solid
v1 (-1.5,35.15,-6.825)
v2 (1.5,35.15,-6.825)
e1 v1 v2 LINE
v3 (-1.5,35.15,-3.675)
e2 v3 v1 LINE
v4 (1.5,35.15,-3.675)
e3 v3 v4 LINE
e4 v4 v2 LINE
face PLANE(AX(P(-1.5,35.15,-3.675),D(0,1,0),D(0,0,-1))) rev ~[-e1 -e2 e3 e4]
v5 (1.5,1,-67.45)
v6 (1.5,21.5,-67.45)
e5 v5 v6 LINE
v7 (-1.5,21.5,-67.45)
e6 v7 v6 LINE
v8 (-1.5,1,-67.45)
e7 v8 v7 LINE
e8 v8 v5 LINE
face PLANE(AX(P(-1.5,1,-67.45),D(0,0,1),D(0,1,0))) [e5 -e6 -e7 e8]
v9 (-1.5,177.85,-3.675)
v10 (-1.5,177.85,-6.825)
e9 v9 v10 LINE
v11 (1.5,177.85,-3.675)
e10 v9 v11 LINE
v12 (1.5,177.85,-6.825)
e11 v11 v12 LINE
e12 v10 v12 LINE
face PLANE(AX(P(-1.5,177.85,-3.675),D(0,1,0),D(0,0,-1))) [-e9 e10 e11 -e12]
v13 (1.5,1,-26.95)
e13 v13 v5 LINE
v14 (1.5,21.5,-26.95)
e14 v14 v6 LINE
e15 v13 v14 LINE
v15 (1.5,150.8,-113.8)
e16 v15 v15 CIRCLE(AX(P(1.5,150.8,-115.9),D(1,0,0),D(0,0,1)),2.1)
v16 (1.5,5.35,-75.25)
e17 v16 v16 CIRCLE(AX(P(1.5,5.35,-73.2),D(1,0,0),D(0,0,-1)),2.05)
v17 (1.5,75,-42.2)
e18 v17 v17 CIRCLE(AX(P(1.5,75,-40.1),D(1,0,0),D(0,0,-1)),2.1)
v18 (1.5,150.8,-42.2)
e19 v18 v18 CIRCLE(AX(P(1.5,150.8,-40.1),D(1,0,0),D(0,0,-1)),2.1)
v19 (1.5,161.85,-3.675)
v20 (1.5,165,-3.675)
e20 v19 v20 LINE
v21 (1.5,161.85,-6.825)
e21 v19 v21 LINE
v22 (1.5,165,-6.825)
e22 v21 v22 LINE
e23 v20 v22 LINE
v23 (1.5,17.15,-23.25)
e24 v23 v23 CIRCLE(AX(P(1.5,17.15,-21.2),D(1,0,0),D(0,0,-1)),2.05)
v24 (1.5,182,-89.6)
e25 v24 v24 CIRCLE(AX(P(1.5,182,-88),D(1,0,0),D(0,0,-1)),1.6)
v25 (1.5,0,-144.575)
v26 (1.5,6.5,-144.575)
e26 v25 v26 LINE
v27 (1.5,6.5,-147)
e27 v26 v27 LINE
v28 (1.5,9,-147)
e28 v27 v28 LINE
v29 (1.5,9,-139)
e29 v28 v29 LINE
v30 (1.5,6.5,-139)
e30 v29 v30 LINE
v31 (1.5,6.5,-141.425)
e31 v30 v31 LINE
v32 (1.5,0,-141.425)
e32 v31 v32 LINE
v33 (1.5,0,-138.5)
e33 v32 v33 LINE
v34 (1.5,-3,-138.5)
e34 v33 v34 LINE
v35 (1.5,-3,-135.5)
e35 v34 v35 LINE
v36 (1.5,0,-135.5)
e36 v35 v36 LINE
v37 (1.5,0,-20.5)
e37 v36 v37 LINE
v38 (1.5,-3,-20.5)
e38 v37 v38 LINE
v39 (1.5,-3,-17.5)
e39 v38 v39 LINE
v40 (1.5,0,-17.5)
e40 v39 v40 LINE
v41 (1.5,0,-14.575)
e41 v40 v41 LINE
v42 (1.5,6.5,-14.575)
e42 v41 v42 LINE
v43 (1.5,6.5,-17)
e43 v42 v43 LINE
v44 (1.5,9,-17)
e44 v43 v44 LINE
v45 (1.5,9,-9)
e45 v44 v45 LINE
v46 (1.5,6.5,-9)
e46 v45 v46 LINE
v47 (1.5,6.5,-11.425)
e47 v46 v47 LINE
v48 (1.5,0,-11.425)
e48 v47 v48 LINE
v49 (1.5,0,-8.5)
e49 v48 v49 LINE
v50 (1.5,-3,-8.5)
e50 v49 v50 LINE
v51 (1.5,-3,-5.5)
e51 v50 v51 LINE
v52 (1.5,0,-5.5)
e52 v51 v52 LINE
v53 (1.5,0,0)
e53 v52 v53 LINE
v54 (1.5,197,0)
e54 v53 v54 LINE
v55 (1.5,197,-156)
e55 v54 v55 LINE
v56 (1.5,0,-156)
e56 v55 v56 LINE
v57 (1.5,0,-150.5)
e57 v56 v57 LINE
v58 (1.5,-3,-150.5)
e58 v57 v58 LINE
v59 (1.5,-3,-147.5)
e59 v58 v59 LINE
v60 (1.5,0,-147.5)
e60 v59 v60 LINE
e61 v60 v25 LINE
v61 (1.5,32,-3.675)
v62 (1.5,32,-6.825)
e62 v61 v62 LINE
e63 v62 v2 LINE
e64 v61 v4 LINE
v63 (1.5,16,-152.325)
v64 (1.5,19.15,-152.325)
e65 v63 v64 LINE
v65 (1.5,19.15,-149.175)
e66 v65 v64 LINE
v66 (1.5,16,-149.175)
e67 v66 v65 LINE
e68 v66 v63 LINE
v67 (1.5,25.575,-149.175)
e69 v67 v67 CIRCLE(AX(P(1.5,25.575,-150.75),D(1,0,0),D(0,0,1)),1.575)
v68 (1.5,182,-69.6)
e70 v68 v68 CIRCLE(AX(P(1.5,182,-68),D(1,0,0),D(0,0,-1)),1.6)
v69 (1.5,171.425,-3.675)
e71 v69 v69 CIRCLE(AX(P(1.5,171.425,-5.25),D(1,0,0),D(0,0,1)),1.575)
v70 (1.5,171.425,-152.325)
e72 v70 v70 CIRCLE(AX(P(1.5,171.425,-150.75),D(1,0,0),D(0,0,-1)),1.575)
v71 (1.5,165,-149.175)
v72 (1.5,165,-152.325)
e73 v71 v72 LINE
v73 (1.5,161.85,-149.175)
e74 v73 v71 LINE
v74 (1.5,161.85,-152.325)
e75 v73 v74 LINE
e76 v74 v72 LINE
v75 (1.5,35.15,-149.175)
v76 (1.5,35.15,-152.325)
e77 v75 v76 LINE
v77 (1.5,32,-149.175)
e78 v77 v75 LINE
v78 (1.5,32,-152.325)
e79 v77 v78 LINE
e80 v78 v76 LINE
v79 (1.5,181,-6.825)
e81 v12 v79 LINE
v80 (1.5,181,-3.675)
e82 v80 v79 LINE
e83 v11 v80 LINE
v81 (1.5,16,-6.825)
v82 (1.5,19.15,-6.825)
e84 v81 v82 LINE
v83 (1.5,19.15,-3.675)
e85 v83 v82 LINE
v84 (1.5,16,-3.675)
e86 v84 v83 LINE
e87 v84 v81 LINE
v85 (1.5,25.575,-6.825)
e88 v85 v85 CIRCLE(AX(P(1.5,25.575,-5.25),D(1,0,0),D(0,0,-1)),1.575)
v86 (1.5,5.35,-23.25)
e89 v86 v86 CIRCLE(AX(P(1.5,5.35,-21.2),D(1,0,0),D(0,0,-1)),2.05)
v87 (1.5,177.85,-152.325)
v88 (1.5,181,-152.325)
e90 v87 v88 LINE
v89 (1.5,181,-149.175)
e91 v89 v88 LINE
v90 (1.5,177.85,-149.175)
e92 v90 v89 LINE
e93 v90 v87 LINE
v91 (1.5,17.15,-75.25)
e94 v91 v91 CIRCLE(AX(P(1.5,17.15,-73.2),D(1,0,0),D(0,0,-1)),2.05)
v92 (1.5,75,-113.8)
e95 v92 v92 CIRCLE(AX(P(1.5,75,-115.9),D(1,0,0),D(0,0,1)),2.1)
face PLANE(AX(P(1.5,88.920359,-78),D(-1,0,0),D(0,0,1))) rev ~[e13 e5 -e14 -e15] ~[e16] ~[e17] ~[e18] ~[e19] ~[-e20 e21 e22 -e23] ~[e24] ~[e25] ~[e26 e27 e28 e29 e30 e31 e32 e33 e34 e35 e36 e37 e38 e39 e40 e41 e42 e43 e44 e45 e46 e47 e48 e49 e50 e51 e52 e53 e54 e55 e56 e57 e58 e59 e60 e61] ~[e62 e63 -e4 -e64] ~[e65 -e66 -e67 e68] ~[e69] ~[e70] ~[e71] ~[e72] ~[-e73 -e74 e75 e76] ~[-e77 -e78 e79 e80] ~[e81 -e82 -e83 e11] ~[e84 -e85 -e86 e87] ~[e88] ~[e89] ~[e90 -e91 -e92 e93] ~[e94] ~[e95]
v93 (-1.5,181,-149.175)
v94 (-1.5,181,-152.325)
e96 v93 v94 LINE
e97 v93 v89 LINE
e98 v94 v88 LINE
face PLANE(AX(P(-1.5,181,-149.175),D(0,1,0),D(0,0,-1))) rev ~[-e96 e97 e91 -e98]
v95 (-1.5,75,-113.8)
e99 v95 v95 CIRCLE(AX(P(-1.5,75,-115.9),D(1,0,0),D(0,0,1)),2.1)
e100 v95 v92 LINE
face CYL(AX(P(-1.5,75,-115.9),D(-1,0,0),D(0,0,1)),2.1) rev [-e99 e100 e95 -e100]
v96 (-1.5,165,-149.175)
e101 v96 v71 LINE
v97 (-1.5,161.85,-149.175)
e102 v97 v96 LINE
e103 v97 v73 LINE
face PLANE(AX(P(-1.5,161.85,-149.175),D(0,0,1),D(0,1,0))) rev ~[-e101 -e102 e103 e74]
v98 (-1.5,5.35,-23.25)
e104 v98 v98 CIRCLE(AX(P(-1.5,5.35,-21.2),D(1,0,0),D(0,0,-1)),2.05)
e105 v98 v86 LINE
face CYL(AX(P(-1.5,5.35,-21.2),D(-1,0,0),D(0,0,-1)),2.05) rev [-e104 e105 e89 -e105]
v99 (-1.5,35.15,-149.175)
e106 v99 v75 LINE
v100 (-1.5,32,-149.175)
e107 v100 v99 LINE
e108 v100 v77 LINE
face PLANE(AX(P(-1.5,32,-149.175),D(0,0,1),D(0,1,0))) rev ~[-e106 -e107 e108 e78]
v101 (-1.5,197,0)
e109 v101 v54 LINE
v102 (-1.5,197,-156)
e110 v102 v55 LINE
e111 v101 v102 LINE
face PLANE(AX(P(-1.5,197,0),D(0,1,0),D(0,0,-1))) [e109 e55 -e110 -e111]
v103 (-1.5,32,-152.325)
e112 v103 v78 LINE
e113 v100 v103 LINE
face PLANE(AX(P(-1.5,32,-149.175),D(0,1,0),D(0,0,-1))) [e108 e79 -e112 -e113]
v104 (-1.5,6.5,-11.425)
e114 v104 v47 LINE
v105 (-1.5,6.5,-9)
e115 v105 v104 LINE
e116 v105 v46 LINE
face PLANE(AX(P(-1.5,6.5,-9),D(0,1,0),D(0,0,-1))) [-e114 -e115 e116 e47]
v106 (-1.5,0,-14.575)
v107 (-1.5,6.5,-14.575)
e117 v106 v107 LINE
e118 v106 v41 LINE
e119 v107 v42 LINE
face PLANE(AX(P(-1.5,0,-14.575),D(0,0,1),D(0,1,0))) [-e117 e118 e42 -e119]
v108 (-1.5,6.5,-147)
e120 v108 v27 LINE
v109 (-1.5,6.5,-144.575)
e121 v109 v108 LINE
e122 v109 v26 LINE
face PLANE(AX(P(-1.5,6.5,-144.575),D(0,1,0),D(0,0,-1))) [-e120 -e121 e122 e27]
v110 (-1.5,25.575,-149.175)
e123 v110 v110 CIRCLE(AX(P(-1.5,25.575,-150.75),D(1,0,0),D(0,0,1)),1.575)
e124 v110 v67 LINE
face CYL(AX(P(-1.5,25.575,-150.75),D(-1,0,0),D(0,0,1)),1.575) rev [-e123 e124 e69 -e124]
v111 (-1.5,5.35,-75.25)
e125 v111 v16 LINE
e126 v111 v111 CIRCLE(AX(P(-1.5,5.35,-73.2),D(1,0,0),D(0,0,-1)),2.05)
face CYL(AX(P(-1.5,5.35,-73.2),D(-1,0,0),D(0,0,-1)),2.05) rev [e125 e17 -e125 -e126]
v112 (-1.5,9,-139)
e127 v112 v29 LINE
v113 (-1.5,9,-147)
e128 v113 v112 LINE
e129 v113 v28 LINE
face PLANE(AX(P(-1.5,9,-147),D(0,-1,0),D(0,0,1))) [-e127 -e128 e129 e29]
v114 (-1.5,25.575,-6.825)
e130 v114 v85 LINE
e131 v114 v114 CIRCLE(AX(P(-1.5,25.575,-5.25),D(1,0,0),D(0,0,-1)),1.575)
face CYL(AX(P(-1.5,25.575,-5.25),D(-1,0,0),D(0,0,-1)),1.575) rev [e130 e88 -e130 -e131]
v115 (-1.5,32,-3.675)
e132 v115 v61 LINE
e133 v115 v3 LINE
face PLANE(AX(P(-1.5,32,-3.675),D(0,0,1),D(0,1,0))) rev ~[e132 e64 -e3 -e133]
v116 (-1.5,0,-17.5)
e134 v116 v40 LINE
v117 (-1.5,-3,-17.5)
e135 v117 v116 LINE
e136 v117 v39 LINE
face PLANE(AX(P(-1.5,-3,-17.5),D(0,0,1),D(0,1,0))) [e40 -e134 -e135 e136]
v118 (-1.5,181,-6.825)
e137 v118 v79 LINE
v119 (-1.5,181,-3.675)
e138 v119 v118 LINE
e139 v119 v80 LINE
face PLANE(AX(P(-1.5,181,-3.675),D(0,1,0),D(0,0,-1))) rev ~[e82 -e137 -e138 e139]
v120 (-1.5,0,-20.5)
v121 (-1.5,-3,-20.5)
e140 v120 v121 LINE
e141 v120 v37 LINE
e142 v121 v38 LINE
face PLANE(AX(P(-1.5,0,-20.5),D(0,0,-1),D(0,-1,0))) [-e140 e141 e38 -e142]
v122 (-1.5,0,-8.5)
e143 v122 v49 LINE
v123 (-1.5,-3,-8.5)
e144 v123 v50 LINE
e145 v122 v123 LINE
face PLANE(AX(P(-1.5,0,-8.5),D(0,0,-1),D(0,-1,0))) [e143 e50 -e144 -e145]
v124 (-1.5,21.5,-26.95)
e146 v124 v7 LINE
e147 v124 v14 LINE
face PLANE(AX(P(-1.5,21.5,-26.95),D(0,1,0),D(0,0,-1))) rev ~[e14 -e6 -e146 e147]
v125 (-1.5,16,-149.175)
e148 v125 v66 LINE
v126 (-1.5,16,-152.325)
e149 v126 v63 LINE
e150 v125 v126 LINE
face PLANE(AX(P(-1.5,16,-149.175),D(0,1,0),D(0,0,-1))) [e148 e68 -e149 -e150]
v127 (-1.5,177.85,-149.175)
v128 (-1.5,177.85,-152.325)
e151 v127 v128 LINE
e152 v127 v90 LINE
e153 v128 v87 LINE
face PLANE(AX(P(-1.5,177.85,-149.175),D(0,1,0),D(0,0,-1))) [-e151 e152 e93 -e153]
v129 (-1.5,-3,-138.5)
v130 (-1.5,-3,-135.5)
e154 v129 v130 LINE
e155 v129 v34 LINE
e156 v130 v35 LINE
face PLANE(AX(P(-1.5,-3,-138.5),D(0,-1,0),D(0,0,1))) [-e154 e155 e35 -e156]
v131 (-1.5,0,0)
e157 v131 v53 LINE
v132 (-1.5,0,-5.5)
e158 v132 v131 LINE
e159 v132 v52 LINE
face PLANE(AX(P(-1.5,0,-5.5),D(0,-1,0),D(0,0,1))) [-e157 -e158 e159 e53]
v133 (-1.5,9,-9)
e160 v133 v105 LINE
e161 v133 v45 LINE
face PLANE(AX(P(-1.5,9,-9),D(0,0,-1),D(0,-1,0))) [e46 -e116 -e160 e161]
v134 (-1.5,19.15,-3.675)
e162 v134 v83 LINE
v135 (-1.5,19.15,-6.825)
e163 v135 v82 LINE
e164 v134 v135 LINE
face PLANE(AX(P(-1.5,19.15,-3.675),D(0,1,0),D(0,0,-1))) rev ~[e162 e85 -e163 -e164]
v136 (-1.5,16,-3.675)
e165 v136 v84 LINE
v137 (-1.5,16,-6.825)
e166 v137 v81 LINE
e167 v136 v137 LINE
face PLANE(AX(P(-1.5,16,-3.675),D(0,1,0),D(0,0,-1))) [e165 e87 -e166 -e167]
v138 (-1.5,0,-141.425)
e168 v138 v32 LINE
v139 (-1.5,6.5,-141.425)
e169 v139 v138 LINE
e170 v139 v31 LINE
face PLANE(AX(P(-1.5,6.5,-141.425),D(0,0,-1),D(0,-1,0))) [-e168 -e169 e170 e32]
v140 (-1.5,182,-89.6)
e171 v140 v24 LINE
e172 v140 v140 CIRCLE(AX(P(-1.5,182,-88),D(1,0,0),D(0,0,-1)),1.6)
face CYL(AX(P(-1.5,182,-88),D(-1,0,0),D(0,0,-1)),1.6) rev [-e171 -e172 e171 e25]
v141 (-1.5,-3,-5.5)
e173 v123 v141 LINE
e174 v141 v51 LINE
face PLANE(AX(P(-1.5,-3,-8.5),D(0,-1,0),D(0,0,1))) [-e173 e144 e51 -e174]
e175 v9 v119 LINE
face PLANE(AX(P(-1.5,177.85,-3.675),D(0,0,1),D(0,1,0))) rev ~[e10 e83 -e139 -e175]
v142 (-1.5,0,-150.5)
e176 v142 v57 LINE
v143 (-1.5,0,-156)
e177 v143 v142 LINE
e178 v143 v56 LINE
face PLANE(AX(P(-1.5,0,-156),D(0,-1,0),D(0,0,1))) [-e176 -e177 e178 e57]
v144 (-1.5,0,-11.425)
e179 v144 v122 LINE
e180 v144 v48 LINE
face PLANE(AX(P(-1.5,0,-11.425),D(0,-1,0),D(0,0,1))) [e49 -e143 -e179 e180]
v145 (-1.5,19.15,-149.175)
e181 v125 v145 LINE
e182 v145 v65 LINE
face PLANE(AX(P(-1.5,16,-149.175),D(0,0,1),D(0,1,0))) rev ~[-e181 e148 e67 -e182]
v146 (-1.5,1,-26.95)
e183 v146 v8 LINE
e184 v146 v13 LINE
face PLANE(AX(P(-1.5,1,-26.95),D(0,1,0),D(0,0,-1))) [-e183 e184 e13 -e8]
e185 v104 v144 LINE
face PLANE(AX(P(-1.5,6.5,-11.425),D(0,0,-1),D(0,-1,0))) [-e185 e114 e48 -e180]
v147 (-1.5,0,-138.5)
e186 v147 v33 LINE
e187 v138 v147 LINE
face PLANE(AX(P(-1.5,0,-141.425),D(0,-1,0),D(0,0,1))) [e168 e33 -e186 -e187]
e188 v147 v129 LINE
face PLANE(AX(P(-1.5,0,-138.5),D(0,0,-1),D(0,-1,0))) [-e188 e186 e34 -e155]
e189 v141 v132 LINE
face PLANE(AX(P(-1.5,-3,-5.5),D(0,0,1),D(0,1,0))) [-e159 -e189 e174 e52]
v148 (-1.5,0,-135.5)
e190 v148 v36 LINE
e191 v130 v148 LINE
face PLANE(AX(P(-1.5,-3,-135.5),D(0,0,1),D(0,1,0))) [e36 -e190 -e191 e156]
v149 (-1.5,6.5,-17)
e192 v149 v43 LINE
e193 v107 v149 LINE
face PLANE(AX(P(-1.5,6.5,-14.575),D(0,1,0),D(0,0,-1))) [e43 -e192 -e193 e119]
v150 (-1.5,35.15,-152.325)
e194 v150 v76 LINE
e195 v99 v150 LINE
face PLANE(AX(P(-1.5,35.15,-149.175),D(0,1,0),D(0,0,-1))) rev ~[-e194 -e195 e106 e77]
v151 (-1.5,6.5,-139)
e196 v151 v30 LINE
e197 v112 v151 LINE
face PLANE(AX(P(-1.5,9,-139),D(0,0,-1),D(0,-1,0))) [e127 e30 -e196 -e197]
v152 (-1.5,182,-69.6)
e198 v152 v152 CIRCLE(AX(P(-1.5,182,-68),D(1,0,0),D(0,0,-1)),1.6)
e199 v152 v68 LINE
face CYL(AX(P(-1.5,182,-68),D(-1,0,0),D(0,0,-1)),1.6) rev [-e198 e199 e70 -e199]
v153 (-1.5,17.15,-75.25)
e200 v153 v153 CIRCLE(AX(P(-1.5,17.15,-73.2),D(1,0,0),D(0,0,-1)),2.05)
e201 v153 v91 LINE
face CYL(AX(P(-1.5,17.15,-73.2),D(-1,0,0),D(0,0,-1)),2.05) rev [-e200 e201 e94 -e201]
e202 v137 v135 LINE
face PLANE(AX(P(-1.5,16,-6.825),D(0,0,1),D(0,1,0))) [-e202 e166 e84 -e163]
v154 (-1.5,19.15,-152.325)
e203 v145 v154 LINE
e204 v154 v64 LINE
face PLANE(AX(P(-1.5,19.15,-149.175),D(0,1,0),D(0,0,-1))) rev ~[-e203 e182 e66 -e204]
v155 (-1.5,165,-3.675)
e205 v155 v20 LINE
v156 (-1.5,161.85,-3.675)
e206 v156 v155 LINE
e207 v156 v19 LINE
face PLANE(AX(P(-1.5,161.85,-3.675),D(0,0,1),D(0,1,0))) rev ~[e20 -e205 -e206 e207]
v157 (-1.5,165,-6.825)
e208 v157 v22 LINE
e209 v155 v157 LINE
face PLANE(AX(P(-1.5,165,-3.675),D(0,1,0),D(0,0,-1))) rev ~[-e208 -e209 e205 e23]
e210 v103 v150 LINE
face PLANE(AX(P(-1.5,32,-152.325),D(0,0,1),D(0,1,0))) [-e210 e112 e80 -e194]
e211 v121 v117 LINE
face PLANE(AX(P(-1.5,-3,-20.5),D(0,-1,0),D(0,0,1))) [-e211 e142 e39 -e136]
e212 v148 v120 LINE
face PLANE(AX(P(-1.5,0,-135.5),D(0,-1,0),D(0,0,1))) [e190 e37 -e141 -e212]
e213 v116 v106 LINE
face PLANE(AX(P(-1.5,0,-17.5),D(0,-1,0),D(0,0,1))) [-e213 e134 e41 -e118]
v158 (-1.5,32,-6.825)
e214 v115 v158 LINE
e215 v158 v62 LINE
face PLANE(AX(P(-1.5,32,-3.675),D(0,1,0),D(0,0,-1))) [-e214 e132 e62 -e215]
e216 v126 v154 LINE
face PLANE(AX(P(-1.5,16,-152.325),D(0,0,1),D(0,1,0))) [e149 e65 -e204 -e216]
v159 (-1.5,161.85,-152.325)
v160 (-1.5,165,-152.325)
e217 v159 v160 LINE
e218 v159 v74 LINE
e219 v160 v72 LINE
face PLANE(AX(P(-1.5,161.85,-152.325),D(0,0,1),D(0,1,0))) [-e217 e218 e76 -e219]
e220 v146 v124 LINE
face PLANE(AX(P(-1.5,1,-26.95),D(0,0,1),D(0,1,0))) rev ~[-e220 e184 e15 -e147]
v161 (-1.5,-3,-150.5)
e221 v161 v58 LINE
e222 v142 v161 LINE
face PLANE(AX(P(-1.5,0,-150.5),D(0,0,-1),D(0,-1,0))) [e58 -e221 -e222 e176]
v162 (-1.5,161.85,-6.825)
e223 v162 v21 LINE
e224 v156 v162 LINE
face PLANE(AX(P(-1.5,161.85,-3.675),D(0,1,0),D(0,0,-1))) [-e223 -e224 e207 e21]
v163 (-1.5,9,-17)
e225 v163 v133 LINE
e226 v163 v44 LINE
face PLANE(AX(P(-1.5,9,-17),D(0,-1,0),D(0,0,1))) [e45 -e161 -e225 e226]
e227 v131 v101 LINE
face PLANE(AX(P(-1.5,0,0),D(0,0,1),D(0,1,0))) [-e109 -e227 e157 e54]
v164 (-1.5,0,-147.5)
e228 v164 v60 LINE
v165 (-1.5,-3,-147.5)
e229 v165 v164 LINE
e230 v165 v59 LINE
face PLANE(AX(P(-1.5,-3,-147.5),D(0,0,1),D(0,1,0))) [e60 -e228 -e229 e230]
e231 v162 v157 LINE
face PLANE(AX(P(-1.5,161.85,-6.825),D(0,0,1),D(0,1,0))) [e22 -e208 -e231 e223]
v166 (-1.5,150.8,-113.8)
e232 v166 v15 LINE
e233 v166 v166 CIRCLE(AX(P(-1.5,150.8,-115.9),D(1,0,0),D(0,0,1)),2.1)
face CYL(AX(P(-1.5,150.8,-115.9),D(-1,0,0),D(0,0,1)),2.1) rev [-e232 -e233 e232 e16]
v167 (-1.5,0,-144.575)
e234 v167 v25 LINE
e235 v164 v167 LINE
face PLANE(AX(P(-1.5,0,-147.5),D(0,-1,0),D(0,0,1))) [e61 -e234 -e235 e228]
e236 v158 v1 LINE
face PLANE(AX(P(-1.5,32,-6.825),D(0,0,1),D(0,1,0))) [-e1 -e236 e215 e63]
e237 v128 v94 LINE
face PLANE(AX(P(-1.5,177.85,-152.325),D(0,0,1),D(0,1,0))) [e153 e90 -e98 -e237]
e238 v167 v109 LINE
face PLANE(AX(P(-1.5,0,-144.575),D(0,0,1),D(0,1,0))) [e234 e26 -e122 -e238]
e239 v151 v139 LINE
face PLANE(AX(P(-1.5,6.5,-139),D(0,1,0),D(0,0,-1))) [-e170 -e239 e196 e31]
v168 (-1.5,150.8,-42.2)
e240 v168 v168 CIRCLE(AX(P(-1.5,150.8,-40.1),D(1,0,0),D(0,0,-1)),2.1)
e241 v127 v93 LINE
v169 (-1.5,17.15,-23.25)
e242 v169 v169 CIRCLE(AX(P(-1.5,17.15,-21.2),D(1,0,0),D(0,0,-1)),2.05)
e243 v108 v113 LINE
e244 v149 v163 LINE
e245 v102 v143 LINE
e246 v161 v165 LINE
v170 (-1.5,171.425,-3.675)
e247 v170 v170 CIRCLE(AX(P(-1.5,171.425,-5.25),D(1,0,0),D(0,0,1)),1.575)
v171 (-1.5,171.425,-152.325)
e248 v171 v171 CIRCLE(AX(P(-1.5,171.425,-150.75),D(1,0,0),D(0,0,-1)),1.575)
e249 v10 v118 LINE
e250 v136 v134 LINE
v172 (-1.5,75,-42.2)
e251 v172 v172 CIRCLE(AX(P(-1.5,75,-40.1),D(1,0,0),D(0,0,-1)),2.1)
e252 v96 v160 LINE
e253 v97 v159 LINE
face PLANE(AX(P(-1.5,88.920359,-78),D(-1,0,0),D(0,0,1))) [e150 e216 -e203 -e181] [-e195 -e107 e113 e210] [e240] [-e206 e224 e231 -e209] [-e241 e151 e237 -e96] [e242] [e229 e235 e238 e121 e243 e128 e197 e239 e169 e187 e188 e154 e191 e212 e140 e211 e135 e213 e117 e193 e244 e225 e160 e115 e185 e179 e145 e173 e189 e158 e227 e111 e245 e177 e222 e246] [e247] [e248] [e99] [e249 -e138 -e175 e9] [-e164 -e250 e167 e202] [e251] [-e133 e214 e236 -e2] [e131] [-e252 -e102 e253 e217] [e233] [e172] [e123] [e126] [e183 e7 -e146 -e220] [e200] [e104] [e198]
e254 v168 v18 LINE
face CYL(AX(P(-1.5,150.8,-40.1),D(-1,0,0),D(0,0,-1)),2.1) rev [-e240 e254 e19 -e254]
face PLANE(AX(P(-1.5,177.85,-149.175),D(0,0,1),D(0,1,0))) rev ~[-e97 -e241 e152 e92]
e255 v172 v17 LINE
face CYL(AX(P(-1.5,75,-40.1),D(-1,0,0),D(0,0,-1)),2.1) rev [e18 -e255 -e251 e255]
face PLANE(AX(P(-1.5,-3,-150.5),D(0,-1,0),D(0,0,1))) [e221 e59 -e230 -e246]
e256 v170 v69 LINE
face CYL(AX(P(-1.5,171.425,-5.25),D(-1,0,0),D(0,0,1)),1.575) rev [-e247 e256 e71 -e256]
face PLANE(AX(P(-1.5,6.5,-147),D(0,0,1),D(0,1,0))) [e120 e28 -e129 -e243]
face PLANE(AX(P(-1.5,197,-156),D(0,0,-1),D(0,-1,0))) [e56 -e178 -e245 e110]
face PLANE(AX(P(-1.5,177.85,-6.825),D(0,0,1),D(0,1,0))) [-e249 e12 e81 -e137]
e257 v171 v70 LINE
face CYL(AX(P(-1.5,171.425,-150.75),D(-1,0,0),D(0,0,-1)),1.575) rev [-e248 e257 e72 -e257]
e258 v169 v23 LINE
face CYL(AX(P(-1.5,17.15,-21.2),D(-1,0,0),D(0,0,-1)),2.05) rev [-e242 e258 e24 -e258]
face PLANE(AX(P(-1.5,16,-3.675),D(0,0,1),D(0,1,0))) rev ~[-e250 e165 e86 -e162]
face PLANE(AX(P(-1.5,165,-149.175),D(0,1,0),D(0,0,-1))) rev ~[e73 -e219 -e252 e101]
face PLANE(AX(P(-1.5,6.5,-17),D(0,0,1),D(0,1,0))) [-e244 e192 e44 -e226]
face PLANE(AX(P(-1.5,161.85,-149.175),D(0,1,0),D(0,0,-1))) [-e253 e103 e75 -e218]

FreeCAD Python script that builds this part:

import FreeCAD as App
import Part
import Sketcher
from FreeCAD import Vector

doc = App.newDocument("Part")
body = doc.addObject("PartDesign::Body", "Body")

sketch1 = body.newObject("Sketcher::SketchObject", "Sketch")
sketch1.AttachmentSupport = (doc.getObject("YZ_Plane"), [""])
sketch1.MapMode = "FlatFace"
sketch1.addGeometry(Part.LineSegment(Vector(0, -8.5, 0), Vector(0, -11.4, 0)), False)
sketch1.addGeometry(Part.LineSegment(Vector(0, -11.4, 0), Vector(6.5, -11.4, 0)), False)
sketch1.addGeometry(Part.LineSegment(Vector(6.5, -11.4, 0), Vector(6.5, -9, 0)), False)
sketch1.addGeometry(Part.LineSegment(Vector(6.5, -9, 0), Vector(9, -9, 0)), False)
sketch1.addGeometry(Part.LineSegment(Vector(9, -9, 0), Vector(9, -17, 0)), False)
sketch1.addGeometry(Part.LineSegment(Vector(9, -17, 0), Vector(6.5, -17, 0)), False)
sketch1.addGeometry(Part.LineSegment(Vector(6.5, -17, 0), Vector(6.5, -14.6, 0)), False)
sketch1.addGeometry(Part.LineSegment(Vector(6.5, -14.6, 0), Vector(0, -14.6, 0)), False)
sketch1.addGeometry(Part.LineSegment(Vector(0, -14.6, 0), Vector(0, -17.5, 0)), False)
sketch1.addGeometry(Part.LineSegment(Vector(0, -17.5, 0), Vector(-3, -17.5, 0)), False)
sketch1.addGeometry(Part.LineSegment(Vector(-3, -17.5, 0), Vector(-3, -20.5, 0)), False)
sketch1.addGeometry(Part.LineSegment(Vector(-3, -20.5, 0), Vector(0, -20.5, 0)), False)
sketch1.addGeometry(Part.LineSegment(Vector(0, -20.5, 0), Vector(0, -135.5, 0)), False)
sketch1.addGeometry(Part.LineSegment(Vector(0, -135.5, 0), Vector(-3, -135.5, 0)), False)
sketch1.addGeometry(Part.LineSegment(Vector(-3, -135.5, 0), Vector(-3, -138.5, 0)), False)
sketch1.addGeometry(Part.LineSegment(Vector(-3, -138.5, 0), Vector(0, -138.5, 0)), False)
sketch1.addGeometry(Part.LineSegment(Vector(0, -138.5, 0), Vector(0, -141.4, 0)), False)
sketch1.addGeometry(Part.LineSegment(Vector(0, -141.4, 0), Vector(6.5, -141.4, 0)), False)
sketch1.addGeometry(Part.LineSegment(Vector(6.5, -141.4, 0), Vector(6.5, -139, 0)), False)
sketch1.addGeometry(Part.LineSegment(Vector(6.5, -139, 0), Vector(9, -139, 0)), False)
sketch1.addGeometry(Part.LineSegment(Vector(9, -139, 0), Vector(9, -147, 0)), False)
sketch1.addGeometry(Part.LineSegment(Vector(9, -147, 0), Vector(6.5, -147, 0)), False)
sketch1.addGeometry(Part.LineSegment(Vector(6.5, -147, 0), Vector(6.5, -144.6, 0)), False)
sketch1.addGeometry(Part.LineSegment(Vector(6.5, -144.6, 0), Vector(0, -144.6, 0)), False)
sketch1.addGeometry(Part.LineSegment(Vector(0, -144.6, 0), Vector(0, -147.5, 0)), False)
sketch1.addGeometry(Part.LineSegment(Vector(0, -147.5, 0), Vector(-3, -147.5, 0)), False)
sketch1.addGeometry(Part.LineSegment(Vector(-3, -147.5, 0), Vector(-3, -150.5, 0)), False)
sketch1.addGeometry(Part.LineSegment(Vector(-3, -150.5, 0), Vector(0, -150.5, 0)), False)
sketch1.addGeometry(Part.LineSegment(Vector(0, -150.5, 0), Vector(0, -156, 0)), False)
sketch1.addGeometry(Part.LineSegment(Vector(0, -156, 0), Vector(197, -156, 0)), False)
sketch1.addGeometry(Part.LineSegment(Vector(197, -156, 0), Vector(197, 0, 0)), False)
sketch1.addGeometry(Part.LineSegment(Vector(197, 0, 0), Vector(0, 0, 0)), False)
sketch1.addGeometry(Part.LineSegment(Vector(0, 0, 0), Vector(0, -5.5, 0)), False)
sketch1.addGeometry(Part.LineSegment(Vector(0, -5.5, 0), Vector(-3, -5.5, 0)), False)
sketch1.addGeometry(Part.LineSegment(Vector(-3, -5.5, 0), Vector(-3, -8.5, 0)), False)
sketch1.addGeometry(Part.LineSegment(Vector(-3, -8.5, 0), Vector(0, -8.5, 0)), False)
sketch1.addGeometry(Part.LineSegment(Vector(16, -149.2, 0), Vector(19.1, -149.2, 0)), False)
sketch1.addGeometry(Part.LineSegment(Vector(19.1, -149.2, 0), Vector(19.1, -152.3, 0)), False)
sketch1.addGeometry(Part.LineSegment(Vector(19.1, -152.3, 0), Vector(16, -152.3, 0)), False)
sketch1.addGeometry(Part.LineSegment(Vector(16, -152.3, 0), Vector(16, -149.2, 0)), False)
sketch1.addGeometry(Part.Circle(Vector(25.6, -150.8, 0), Vector(0, 0, 1), 1.6), False)
sketch1.addGeometry(Part.LineSegment(Vector(32, -149.2, 0), Vector(35.1, -149.2, 0)), False)
sketch1.addGeometry(Part.LineSegment(Vector(35.1, -149.2, 0), Vector(35.1, -152.3, 0)), False)
sketch1.addGeometry(Part.LineSegment(Vector(35.1, -152.3, 0), Vector(32, -152.3, 0)), False)
sketch1.addGeometry(Part.LineSegment(Vector(32, -152.3, 0), Vector(32, -149.2, 0)), False)
sketch1.addGeometry(Part.Circle(Vector(75, -115.9, 0), Vector(0, 0, 1), 2.1), False)
sketch1.addGeometry(Part.Circle(Vector(5.3, -73.2, 0), Vector(0, 0, 1), 2), False)
sketch1.addGeometry(Part.Circle(Vector(17.1, -73.2, 0), Vector(0, 0, 1), 2), False)
sketch1.addGeometry(Part.LineSegment(Vector(1, -26.9, 0), Vector(21.5, -26.9, 0)), False)
sketch1.addGeometry(Part.LineSegment(Vector(21.5, -26.9, 0), Vector(21.5, -67.5, 0)), False)
sketch1.addGeometry(Part.LineSegment(Vector(21.5, -67.5, 0), Vector(1, -67.5, 0)), False)
sketch1.addGeometry(Part.LineSegment(Vector(1, -67.5, 0), Vector(1, -26.9, 0)), False)
sketch1.addGeometry(Part.Circle(Vector(5.3, -21.2, 0), Vector(0, 0, 1), 2), False)
sketch1.addGeometry(Part.Circle(Vector(17.1, -21.2, 0), Vector(0, 0, 1), 2), False)
sketch1.addGeometry(Part.LineSegment(Vector(16, -3.7, 0), Vector(19.1, -3.7, 0)), False)
sketch1.addGeometry(Part.LineSegment(Vector(19.1, -3.7, 0), Vector(19.1, -6.8, 0)), False)
sketch1.addGeometry(Part.LineSegment(Vector(19.1, -6.8, 0), Vector(16, -6.8, 0)), False)
sketch1.addGeometry(Part.LineSegment(Vector(16, -6.8, 0), Vector(16, -3.7, 0)), False)
sketch1.addGeometry(Part.Circle(Vector(25.6, -5.2, 0), Vector(0, 0, 1), 1.6), False)
sketch1.addGeometry(Part.LineSegment(Vector(32, -3.7, 0), Vector(35.1, -3.7, 0)), False)
sketch1.addGeometry(Part.LineSegment(Vector(35.1, -3.7, 0), Vector(35.1, -6.8, 0)), False)
sketch1.addGeometry(Part.LineSegment(Vector(35.1, -6.8, 0), Vector(32, -6.8, 0)), False)
sketch1.addGeometry(Part.LineSegment(Vector(32, -6.8, 0), Vector(32, -3.7, 0)), False)
sketch1.addGeometry(Part.Circle(Vector(75, -40.1, 0), Vector(0, 0, 1), 2.1), False)
sketch1.addGeometry(Part.Circle(Vector(150.8, -115.9, 0), Vector(0, 0, 1), 2.1), False)
sketch1.addGeometry(Part.LineSegment(Vector(161.8, -149.2, 0), Vector(165, -149.2, 0)), False)
sketch1.addGeometry(Part.LineSegment(Vector(165, -149.2, 0), Vector(165, -152.3, 0)), False)
sketch1.addGeometry(Part.LineSegment(Vector(165, -152.3, 0), Vector(161.8, -152.3, 0)), False)
sketch1.addGeometry(Part.LineSegment(Vector(161.8, -152.3, 0), Vector(161.8, -149.2, 0)), False)
sketch1.addGeometry(Part.Circle(Vector(171.4, -150.8, 0), Vector(0, 0, 1), 1.6), False)
sketch1.addGeometry(Part.LineSegment(Vector(177.8, -149.2, 0), Vector(181, -149.2, 0)), False)
sketch1.addGeometry(Part.LineSegment(Vector(181, -149.2, 0), Vector(181, -152.3, 0)), False)
sketch1.addGeometry(Part.LineSegment(Vector(181, -152.3, 0), Vector(177.8, -152.3, 0)), False)
sketch1.addGeometry(Part.LineSegment(Vector(177.8, -152.3, 0), Vector(177.8, -149.2, 0)), False)
sketch1.addGeometry(Part.Circle(Vector(182, -88, 0), Vector(0, 0, 1), 1.6), False)
sketch1.addGeometry(Part.Circle(Vector(182, -68, 0), Vector(0, 0, 1), 1.6), False)
sketch1.addGeometry(Part.Circle(Vector(150.8, -40.1, 0), Vector(0, 0, 1), 2.1), False)
sketch1.addGeometry(Part.LineSegment(Vector(161.8, -3.7, 0), Vector(165, -3.7, 0)), False)
sketch1.addGeometry(Part.LineSegment(Vector(165, -3.7, 0), Vector(165, -6.8, 0)), False)
sketch1.addGeometry(Part.LineSegment(Vector(165, -6.8, 0), Vector(161.8, -6.8, 0)), False)
sketch1.addGeometry(Part.LineSegment(Vector(161.8, -6.8, 0), Vector(161.8, -3.7, 0)), False)
sketch1.addGeometry(Part.Circle(Vector(171.4, -5.2, 0), Vector(0, 0, 1), 1.6), False)
sketch1.addGeometry(Part.LineSegment(Vector(177.8, -3.7, 0), Vector(181, -3.7, 0)), False)
sketch1.addGeometry(Part.LineSegment(Vector(181, -3.7, 0), Vector(181, -6.8, 0)), False)
sketch1.addGeometry(Part.LineSegment(Vector(181, -6.8, 0), Vector(177.8, -6.8, 0)), False)
sketch1.addGeometry(Part.LineSegment(Vector(177.8, -6.8, 0), Vector(177.8, -3.7, 0)), False)
sketch1.addConstraint(Sketcher.Constraint("Coincident", 0, 2, 1, 1))
sketch1.addConstraint(Sketcher.Constraint("Coincident", 1, 2, 2, 1))
sketch1.addConstraint(Sketcher.Constraint("Coincident", 2, 2, 3, 1))
sketch1.addConstraint(Sketcher.Constraint("Coincident", 3, 2, 4, 1))
sketch1.addConstraint(Sketcher.Constraint("Coincident", 4, 2, 5, 1))
sketch1.addConstraint(Sketcher.Constraint("Coincident", 5, 2, 6, 1))
sketch1.addConstraint(Sketcher.Constraint("Coincident", 6, 2, 7, 1))
sketch1.addConstraint(Sketcher.Constraint("Coincident", 7, 2, 8, 1))
sketch1.addConstraint(Sketcher.Constraint("Coincident", 8, 2, 9, 1))
sketch1.addConstraint(Sketcher.Constraint("Coincident", 9, 2, 10, 1))
sketch1.addConstraint(Sketcher.Constraint("Coincident", 10, 2, 11, 1))
sketch1.addConstraint(Sketcher.Constraint("Coincident", 11, 2, 12, 1))
sketch1.addConstraint(Sketcher.Constraint("Coincident", 12, 2, 13, 1))
sketch1.addConstraint(Sketcher.Constraint("Coincident", 13, 2, 14, 1))
sketch1.addConstraint(Sketcher.Constraint("Coincident", 14, 2, 15, 1))
sketch1.addConstraint(Sketcher.Constraint("Coincident", 15, 2, 16, 1))
sketch1.addConstraint(Sketcher.Constraint("Coincident", 16, 2, 17, 1))
sketch1.addConstraint(Sketcher.Constraint("Coincident", 17, 2, 18, 1))
sketch1.addConstraint(Sketcher.Constraint("Coincident", 18, 2, 19, 1))
sketch1.addConstraint(Sketcher.Constraint("Coincident", 19, 2, 20, 1))
sketch1.addConstraint(Sketcher.Constraint("Coincident", 20, 2, 21, 1))
sketch1.addConstraint(Sketcher.Constraint("Coincident", 21, 2, 22, 1))
sketch1.addConstraint(Sketcher.Constraint("Coincident", 22, 2, 23, 1))
sketch1.addConstraint(Sketcher.Constraint("Coincident", 23, 2, 24, 1))
sketch1.addConstraint(Sketcher.Constraint("Coincident", 24, 2, 25, 1))
sketch1.addConstraint(Sketcher.Constraint("Coincident", 25, 2, 26, 1))
sketch1.addConstraint(Sketcher.Constraint("Coincident", 26, 2, 27, 1))
sketch1.addConstraint(Sketcher.Constraint("Coincident", 27, 2, 28, 1))
sketch1.addConstraint(Sketcher.Constraint("Coincident", 28, 2, 29, 1))
sketch1.addConstraint(Sketcher.Constraint("Coincident", 29, 2, 30, 1))
sketch1.addConstraint(Sketcher.Constraint("Coincident", 30, 2, 31, 1))
sketch1.addConstraint(Sketcher.Constraint("Coincident", 31, 2, 32, 1))
sketch1.addConstraint(Sketcher.Constraint("Coincident", 32, 2, 33, 1))
sketch1.addConstraint(Sketcher.Constraint("Coincident", 33, 2, 34, 1))
sketch1.addConstraint(Sketcher.Constraint("Coincident", 34, 2, 35, 1))
sketch1.addConstraint(Sketcher.Constraint("Coincident", 35, 2, 0, 1))
sketch1.addConstraint(Sketcher.Constraint("Coincident", 36, 2, 37, 1))
sketch1.addConstraint(Sketcher.Constraint("Coincident", 37, 2, 38, 1))
sketch1.addConstraint(Sketcher.Constraint("Coincident", 38, 2, 39, 1))
sketch1.addConstraint(Sketcher.Constraint("Coincident", 39, 2, 36, 1))
sketch1.addConstraint(Sketcher.Constraint("Coincident", 41, 2, 42, 1))
sketch1.addConstraint(Sketcher.Constraint("Coincident", 42, 2, 43, 1))
sketch1.addConstraint(Sketcher.Constraint("Coincident", 43, 2, 44, 1))
sketch1.addConstraint(Sketcher.Constraint("Coincident", 44, 2, 41, 1))
sketch1.addConstraint(Sketcher.Constraint("Coincident", 48, 2, 49, 1))
sketch1.addConstraint(Sketcher.Constraint("Coincident", 49, 2, 50, 1))
sketch1.addConstraint(Sketcher.Constraint("Coincident", 50, 2, 51, 1))
sketch1.addConstraint(Sketcher.Constraint("Coincident", 51, 2, 48, 1))
sketch1.addConstraint(Sketcher.Constraint("Coincident", 54, 2, 55, 1))
sketch1.addConstraint(Sketcher.Constraint("Coincident", 55, 2, 56, 1))
sketch1.addConstraint(Sketcher.Constraint("Coincident", 56, 2, 57, 1))
sketch1.addConstraint(Sketcher.Constraint("Coincident", 57, 2, 54, 1))
sketch1.addConstraint(Sketcher.Constraint("Coincident", 59, 2, 60, 1))
sketch1.addConstraint(Sketcher.Constraint("Coincident", 60, 2, 61, 1))
sketch1.addConstraint(Sketcher.Constraint("Coincident", 61, 2, 62, 1))
sketch1.addConstraint(Sketcher.Constraint("Coincident", 62, 2, 59, 1))
sketch1.addConstraint(Sketcher.Constraint("Coincident", 65, 2, 66, 1))
sketch1.addConstraint(Sketcher.Constraint("Coincident", 66, 2, 67, 1))
sketch1.addConstraint(Sketcher.Constraint("Coincident", 67, 2, 68, 1))
sketch1.addConstraint(Sketcher.Constraint("Coincident", 68, 2, 65, 1))
sketch1.addConstraint(Sketcher.Constraint("Coincident", 70, 2, 71, 1))
sketch1.addConstraint(Sketcher.Constraint("Coincident", 71, 2, 72, 1))
sketch1.addConstraint(Sketcher.Constraint("Coincident", 72, 2, 73, 1))
sketch1.addConstraint(Sketcher.Constraint("Coincident", 73, 2, 70, 1))
sketch1.addConstraint(Sketcher.Constraint("Coincident", 77, 2, 78, 1))
sketch1.addConstraint(Sketcher.Constraint("Coincident", 78, 2, 79, 1))
sketch1.addConstraint(Sketcher.Constraint("Coincident", 79, 2, 80, 1))
sketch1.addConstraint(Sketcher.Constraint("Coincident", 80, 2, 77, 1))
sketch1.addConstraint(Sketcher.Constraint("Coincident", 82, 2, 83, 1))
sketch1.addConstraint(Sketcher.Constraint("Coincident", 83, 2, 84, 1))
sketch1.addConstraint(Sketcher.Constraint("Coincident", 84, 2, 85, 1))
sketch1.addConstraint(Sketcher.Constraint("Coincident", 85, 2, 82, 1))
sketch1.addConstraint(Sketcher.Constraint("Vertical", 0))
sketch1.addConstraint(Sketcher.Constraint("Horizontal", 1))
sketch1.addConstraint(Sketcher.Constraint("Vertical", 2))
sketch1.addConstraint(Sketcher.Constraint("Horizontal", 3))
sketch1.addConstraint(Sketcher.Constraint("Vertical", 4))
sketch1.addConstraint(Sketcher.Constraint("Horizontal", 5))
sketch1.addConstraint(Sketcher.Constraint("Vertical", 6))
sketch1.addConstraint(Sketcher.Constraint("Horizontal", 7))
sketch1.addConstraint(Sketcher.Constraint("Vertical", 8))
sketch1.addConstraint(Sketcher.Constraint("Horizontal", 9))
sketch1.addConstraint(Sketcher.Constraint("Vertical", 10))
sketch1.addConstraint(Sketcher.Constraint("Horizontal", 11))
sketch1.addConstraint(Sketcher.Constraint("Vertical", 12))
sketch1.addConstraint(Sketcher.Constraint("Horizontal", 13))
sketch1.addConstraint(Sketcher.Constraint("Vertical", 14))
sketch1.addConstraint(Sketcher.Constraint("Horizontal", 15))
sketch1.addConstraint(Sketcher.Constraint("Vertical", 16))
sketch1.addConstraint(Sketcher.Constraint("Horizontal", 17))
sketch1.addConstraint(Sketcher.Constraint("Vertical", 18))
sketch1.addConstraint(Sketcher.Constraint("Horizontal", 19))
sketch1.addConstraint(Sketcher.Constraint("Vertical", 20))
sketch1.addConstraint(Sketcher.Constraint("Horizontal", 21))
sketch1.addConstraint(Sketcher.Constraint("Vertical", 22))
sketch1.addConstraint(Sketcher.Constraint("Horizontal", 23))
sketch1.addConstraint(Sketcher.Constraint("Vertical", 24))
sketch1.addConstraint(Sketcher.Constraint("Horizontal", 25))
sketch1.addConstraint(Sketcher.Constraint("Vertical", 26))
sketch1.addConstraint(Sketcher.Constraint("Horizontal", 27))
sketch1.addConstraint(Sketcher.Constraint("Vertical", 28))
sketch1.addConstraint(Sketcher.Constraint("Horizontal", 29))
sketch1.addConstraint(Sketcher.Constraint("Vertical", 30))
sketch1.addConstraint(Sketcher.Constraint("Horizontal", 31))
sketch1.addConstraint(Sketcher.Constraint("Vertical", 32))
sketch1.addConstraint(Sketcher.Constraint("Horizontal", 33))
sketch1.addConstraint(Sketcher.Constraint("Vertical", 34))
sketch1.addConstraint(Sketcher.Constraint("Horizontal", 35))
sketch1.addConstraint(Sketcher.Constraint("Horizontal", 36))
sketch1.addConstraint(Sketcher.Constraint("Vertical", 37))
sketch1.addConstraint(Sketcher.Constraint("Horizontal", 38))
sketch1.addConstraint(Sketcher.Constraint("Vertical", 39))
sketch1.addConstraint(Sketcher.Constraint("Horizontal", 41))
sketch1.addConstraint(Sketcher.Constraint("Vertical", 42))
sketch1.addConstraint(Sketcher.Constraint("Horizontal", 43))
sketch1.addConstraint(Sketcher.Constraint("Vertical", 44))
sketch1.addConstraint(Sketcher.Constraint("Horizontal", 48))
sketch1.addConstraint(Sketcher.Constraint("Vertical", 49))
sketch1.addConstraint(Sketcher.Constraint("Horizontal", 50))
sketch1.addConstraint(Sketcher.Constraint("Vertical", 51))
sketch1.addConstraint(Sketcher.Constraint("Horizontal", 54))
sketch1.addConstraint(Sketcher.Constraint("Vertical", 55))
sketch1.addConstraint(Sketcher.Constraint("Horizontal", 56))
sketch1.addConstraint(Sketcher.Constraint("Vertical", 57))
sketch1.addConstraint(Sketcher.Constraint("Horizontal", 59))
sketch1.addConstraint(Sketcher.Constraint("Vertical", 60))
sketch1.addConstraint(Sketcher.Constraint("Horizontal", 61))
sketch1.addConstraint(Sketcher.Constraint("Vertical", 62))
sketch1.addConstraint(Sketcher.Constraint("Horizontal", 65))
sketch1.addConstraint(Sketcher.Constraint("Vertical", 66))
sketch1.addConstraint(Sketcher.Constraint("Horizontal", 67))
sketch1.addConstraint(Sketcher.Constraint("Vertical", 68))
sketch1.addConstraint(Sketcher.Constraint("Horizontal", 70))
sketch1.addConstraint(Sketcher.Constraint("Vertical", 71))
sketch1.addConstraint(Sketcher.Constraint("Horizontal", 72))
sketch1.addConstraint(Sketcher.Constraint("Vertical", 73))
sketch1.addConstraint(Sketcher.Constraint("Horizontal", 77))
sketch1.addConstraint(Sketcher.Constraint("Vertical", 78))
sketch1.addConstraint(Sketcher.Constraint("Horizontal", 79))
sketch1.addConstraint(Sketcher.Constraint("Vertical", 80))
sketch1.addConstraint(Sketcher.Constraint("Horizontal", 82))
sketch1.addConstraint(Sketcher.Constraint("Vertical", 83))
sketch1.addConstraint(Sketcher.Constraint("Horizontal", 84))
sketch1.addConstraint(Sketcher.Constraint("Vertical", 85))
sketch1.addConstraint(Sketcher.Constraint("Coincident", 31, 2, -1, 1))
sketch1.addConstraint(Sketcher.Constraint("Equal", 46, 47))
sketch1.addConstraint(Sketcher.Constraint("Equal", 47, 52))
sketch1.addConstraint(Sketcher.Constraint("Equal", 52, 53))
sketch1.addConstraint(Sketcher.Constraint("Equal", 40, 58))
sketch1.addConstraint(Sketcher.Constraint("Equal", 45, 63))
sketch1.addConstraint(Sketcher.Constraint("Equal", 63, 64))
sketch1.addConstraint(Sketcher.Constraint("Equal", 58, 69))
sketch1.addConstraint(Sketcher.Constraint("Equal", 74, 75))
sketch1.addConstraint(Sketcher.Constraint("Equal", 64, 76))
sketch1.addConstraint(Sketcher.Constraint("Equal", 69, 81))
sketch1.addConstraint(Sketcher.Constraint("PointOnObject", 0, 2, -2))
sketch1.addConstraint(Sketcher.Constraint("PointOnObject", 7, 2, -2))
sketch1.addConstraint(Sketcher.Constraint("PointOnObject", 11, 2, -2))
sketch1.addConstraint(Sketcher.Constraint("PointOnObject", 15, 2, -2))
sketch1.addConstraint(Sketcher.Constraint("PointOnObject", 23, 2, -2))
sketch1.addConstraint(Sketcher.Constraint("PointOnObject", 27, 2, -2))
sketch1.addConstraint(Sketcher.Constraint("Horizontal", 46, 3, 47, 3))
sketch1.addConstraint(Sketcher.Constraint("Horizontal", 52, 3, 53, 3))
sketch1.addConstraint(Sketcher.Constraint("Horizontal", 45, 3, 64, 3))
sketch1.addConstraint(Sketcher.Constraint("Horizontal", 40, 3, 69, 3))
sketch1.addConstraint(Sketcher.Constraint("Horizontal", 63, 3, 76, 3))
sketch1.addConstraint(Sketcher.Constraint("Horizontal", 58, 3, 81, 3))
sketch1.addConstraint(Sketcher.Constraint("Horizontal", 39, 2, 41, 2))
sketch1.addConstraint(Sketcher.Constraint("Horizontal", 38, 2, 42, 2))
sketch1.addConstraint(Sketcher.Constraint("Horizontal", 57, 2, 59, 2))
sketch1.addConstraint(Sketcher.Constraint("Horizontal", 56, 2, 60, 2))
sketch1.addConstraint(Sketcher.Constraint("Horizontal", 44, 2, 65, 2))
sketch1.addConstraint(Sketcher.Constraint("Horizontal", 43, 2, 66, 2))
sketch1.addConstraint(Sketcher.Constraint("Horizontal", 68, 2, 70, 2))
sketch1.addConstraint(Sketcher.Constraint("Horizontal", 67, 2, 71, 2))
sketch1.addConstraint(Sketcher.Constraint("Horizontal", 62, 2, 77, 2))
sketch1.addConstraint(Sketcher.Constraint("Horizontal", 61, 2, 78, 2))
sketch1.addConstraint(Sketcher.Constraint("Horizontal", 80, 2, 82, 2))
sketch1.addConstraint(Sketcher.Constraint("Horizontal", 79, 2, 83, 2))
sketch1.addConstraint(Sketcher.Constraint("Vertical", 46, 3, 52, 3))
sketch1.addConstraint(Sketcher.Constraint("Vertical", 47, 3, 53, 3))
sketch1.addConstraint(Sketcher.Constraint("Vertical", 40, 3, 58, 3))
sketch1.addConstraint(Sketcher.Constraint("Vertical", 45, 3, 63, 3))
sketch1.addConstraint(Sketcher.Constraint("Vertical", 74, 3, 75, 3))
sketch1.addConstraint(Sketcher.Constraint("Vertical", 64, 3, 76, 3))
sketch1.addConstraint(Sketcher.Constraint("Vertical", 69, 3, 81, 3))
sketch1.addConstraint(Sketcher.Constraint("Vertical", 2, 2, 5, 2))
sketch1.addConstraint(Sketcher.Constraint("Vertical", 10, 2, 13, 2))
sketch1.addConstraint(Sketcher.Constraint("Vertical", 6, 2, 17, 2))
sketch1.addConstraint(Sketcher.Constraint("Vertical", 4, 2, 19, 2))
sketch1.addConstraint(Sketcher.Constraint("Vertical", 18, 2, 21, 2))
sketch1.addConstraint(Sketcher.Constraint("Vertical", 14, 2, 25, 2))
sketch1.addConstraint(Sketcher.Constraint("Vertical", 26, 2, 33, 2))
sketch1.addConstraint(Sketcher.Constraint("Vertical", 37, 2, 54, 2))
sketch1.addConstraint(Sketcher.Constraint("Vertical", 39, 2, 56, 2))
sketch1.addConstraint(Sketcher.Constraint("Vertical", 42, 2, 59, 2))
sketch1.addConstraint(Sketcher.Constraint("Vertical", 44, 2, 61, 2))
sketch1.addConstraint(Sketcher.Constraint("Vertical", 66, 2, 77, 2))
sketch1.addConstraint(Sketcher.Constraint("Vertical", 68, 2, 79, 2))
sketch1.addConstraint(Sketcher.Constraint("Vertical", 71, 2, 82, 2))
sketch1.addConstraint(Sketcher.Constraint("Vertical", 73, 2, 84, 2))
sketch1.addConstraint(Sketcher.Constraint("Equal", 38, 41))
sketch1.addConstraint(Sketcher.Constraint("Equal", 61, 65))
sketch1.addConstraint(Sketcher.Constraint("Equal", 67, 70))
sketch1.addConstraint(Sketcher.Constraint("Equal", 2, 6))
sketch1.addConstraint(Sketcher.Constraint("Equal", 0, 8))
sketch1.addConstraint(Sketcher.Constraint("Equal", 35, 10))
sketch1.addConstraint(Sketcher.Constraint("Equal", 10, 14))
sketch1.addConstraint(Sketcher.Constraint("Equal", 8, 16))
sketch1.addConstraint(Sketcher.Constraint("Equal", 6, 18))
sketch1.addConstraint(Sketcher.Constraint("Equal", 4, 20))
sketch1.addConstraint(Sketcher.Constraint("Equal", 18, 22))
sketch1.addConstraint(Sketcher.Constraint("Equal", 16, 24))
sketch1.addConstraint(Sketcher.Constraint("Equal", 14, 26))
sketch1.addConstraint(Sketcher.Constraint("Equal", 28, 32))
sketch1.addConstraint(Sketcher.Constraint("Equal", 26, 34))
sketch1.addConstraint(Sketcher.Constraint("Equal", 84, 37))
sketch1.addConstraint(Sketcher.Constraint("Equal", 44, 55))
sketch1.addConstraint(Sketcher.Constraint("Diameter", 45, 4.2))
sketch1.addConstraint(Sketcher.Constraint("Diameter", 46, 4.1))
sketch1.addConstraint(Sketcher.Constraint("Diameter", 74, 3.2))
sketch1.addConstraint(Sketcher.Constraint("Diameter", 40, 3.15))
sketch1.addConstraint(Sketcher.Constraint("DistanceX", 9, 2, 9, 1, 3.0))
sketch1.addConstraint(Sketcher.Constraint("DistanceX", 29, 1, 29, 2, 197.0))
sketch1.addConstraint(Sketcher.Constraint("DistanceY", 4, 2, 4, 1, 8.0))
sketch1.addConstraint(Sketcher.Constraint("DistanceY", 12, 2, 12, 1, 115.0))
sketch1.addConstraint(Sketcher.Constraint("DistanceY", 30, 1, 30, 2, 156.0))
sketch1.addConstraint(Sketcher.Constraint("DistanceX", 1, 1, 1, 2, 6.5))
sketch1.addConstraint(Sketcher.Constraint("DistanceX", 3, 1, 3, 2, 2.5))
sketch1.addConstraint(Sketcher.Constraint("DistanceX", 48, 1, 48, 2, 20.5))
sketch1.addConstraint(Sketcher.Constraint("DistanceY", 28, 2, 28, 1, 5.5))
sketch1.addConstraint(Sketcher.Constraint("DistanceY", 49, 2, 49, 1, 40.5))
sketch1.addConstraint(Sketcher.Constraint("DistanceX", -1, 1, 45, 3, 75.0))
sketch1.addConstraint(Sketcher.Constraint("DistanceX", -1, 1, 74, 3, 182.0))
sketch1.addConstraint(Sketcher.Constraint("DistanceY", 74, 3, -1, 1, 88.0))
sketch1.addConstraint(Sketcher.Constraint("DistanceY", 75, 3, -1, 1, 68.0))
sketch1.addConstraint(Sketcher.Constraint("DistanceX", -1, 1, 38, 2, 16.0))
sketch1.addConstraint(Sketcher.Constraint("DistanceX", -1, 1, 43, 2, 32.0))
sketch1.addConstraint(Sketcher.Constraint("DistanceX", -1, 1, 50, 2, 1.0))
sketch1.addConstraint(Sketcher.Constraint("DistanceX", -1, 1, 65, 2, 165.0))
sketch1.addConstraint(Sketcher.Constraint("DistanceX", -1, 1, 70, 2, 181.0))
sketch1.addConstraint(Sketcher.Constraint("DistanceX", 36, 1, 36, 2, 3.15))
sketch1.addConstraint(Sketcher.Constraint("DistanceY", 45, 3, -1, 1, 115.9))
sketch1.addConstraint(Sketcher.Constraint("DistanceY", 46, 3, -1, 1, 73.2))
sketch1.addConstraint(Sketcher.Constraint("DistanceY", 52, 3, -1, 1, 21.2))
sketch1.addConstraint(Sketcher.Constraint("DistanceY", 63, 3, -1, 1, 40.1))
sketch1.addConstraint(Sketcher.Constraint("DistanceX", -1, 1, 64, 3, 150.8))
sketch1.addConstraint(Sketcher.Constraint("DistanceY", 0, 2, 0, 1, 2.925))
sketch1.addConstraint(Sketcher.Constraint("DistanceY", 40, 3, -1, 1, 150.75))
sketch1.addConstraint(Sketcher.Constraint("DistanceX", -1, 1, 46, 3, 5.35))
sketch1.addConstraint(Sketcher.Constraint("DistanceX", -1, 1, 47, 3, 17.15))
sketch1.addConstraint(Sketcher.Constraint("DistanceY", 58, 3, -1, 1, 5.25))
sketch1.addConstraint(Sketcher.Constraint("DistanceY", 48, 2, -1, 1, 26.95))
sketch1.addConstraint(Sketcher.Constraint("DistanceX", -1, 1, 40, 3, 25.575))
sketch1.addConstraint(Sketcher.Constraint("DistanceX", -1, 1, 69, 3, 171.425))
sketch1.addConstraint(Sketcher.Constraint("DistanceY", 36, 2, -1, 1, 149.175))
sketch1.addConstraint(Sketcher.Constraint("DistanceY", 54, 2, -1, 1, 3.675))
pad1 = body.newObject("PartDesign::Pad", "Pad")
pad1.Profile = sketch1
pad1.Type = "TwoLengths"
pad1.Length = 1.5
pad1.Length2 = 1.5

doc.recompute()
